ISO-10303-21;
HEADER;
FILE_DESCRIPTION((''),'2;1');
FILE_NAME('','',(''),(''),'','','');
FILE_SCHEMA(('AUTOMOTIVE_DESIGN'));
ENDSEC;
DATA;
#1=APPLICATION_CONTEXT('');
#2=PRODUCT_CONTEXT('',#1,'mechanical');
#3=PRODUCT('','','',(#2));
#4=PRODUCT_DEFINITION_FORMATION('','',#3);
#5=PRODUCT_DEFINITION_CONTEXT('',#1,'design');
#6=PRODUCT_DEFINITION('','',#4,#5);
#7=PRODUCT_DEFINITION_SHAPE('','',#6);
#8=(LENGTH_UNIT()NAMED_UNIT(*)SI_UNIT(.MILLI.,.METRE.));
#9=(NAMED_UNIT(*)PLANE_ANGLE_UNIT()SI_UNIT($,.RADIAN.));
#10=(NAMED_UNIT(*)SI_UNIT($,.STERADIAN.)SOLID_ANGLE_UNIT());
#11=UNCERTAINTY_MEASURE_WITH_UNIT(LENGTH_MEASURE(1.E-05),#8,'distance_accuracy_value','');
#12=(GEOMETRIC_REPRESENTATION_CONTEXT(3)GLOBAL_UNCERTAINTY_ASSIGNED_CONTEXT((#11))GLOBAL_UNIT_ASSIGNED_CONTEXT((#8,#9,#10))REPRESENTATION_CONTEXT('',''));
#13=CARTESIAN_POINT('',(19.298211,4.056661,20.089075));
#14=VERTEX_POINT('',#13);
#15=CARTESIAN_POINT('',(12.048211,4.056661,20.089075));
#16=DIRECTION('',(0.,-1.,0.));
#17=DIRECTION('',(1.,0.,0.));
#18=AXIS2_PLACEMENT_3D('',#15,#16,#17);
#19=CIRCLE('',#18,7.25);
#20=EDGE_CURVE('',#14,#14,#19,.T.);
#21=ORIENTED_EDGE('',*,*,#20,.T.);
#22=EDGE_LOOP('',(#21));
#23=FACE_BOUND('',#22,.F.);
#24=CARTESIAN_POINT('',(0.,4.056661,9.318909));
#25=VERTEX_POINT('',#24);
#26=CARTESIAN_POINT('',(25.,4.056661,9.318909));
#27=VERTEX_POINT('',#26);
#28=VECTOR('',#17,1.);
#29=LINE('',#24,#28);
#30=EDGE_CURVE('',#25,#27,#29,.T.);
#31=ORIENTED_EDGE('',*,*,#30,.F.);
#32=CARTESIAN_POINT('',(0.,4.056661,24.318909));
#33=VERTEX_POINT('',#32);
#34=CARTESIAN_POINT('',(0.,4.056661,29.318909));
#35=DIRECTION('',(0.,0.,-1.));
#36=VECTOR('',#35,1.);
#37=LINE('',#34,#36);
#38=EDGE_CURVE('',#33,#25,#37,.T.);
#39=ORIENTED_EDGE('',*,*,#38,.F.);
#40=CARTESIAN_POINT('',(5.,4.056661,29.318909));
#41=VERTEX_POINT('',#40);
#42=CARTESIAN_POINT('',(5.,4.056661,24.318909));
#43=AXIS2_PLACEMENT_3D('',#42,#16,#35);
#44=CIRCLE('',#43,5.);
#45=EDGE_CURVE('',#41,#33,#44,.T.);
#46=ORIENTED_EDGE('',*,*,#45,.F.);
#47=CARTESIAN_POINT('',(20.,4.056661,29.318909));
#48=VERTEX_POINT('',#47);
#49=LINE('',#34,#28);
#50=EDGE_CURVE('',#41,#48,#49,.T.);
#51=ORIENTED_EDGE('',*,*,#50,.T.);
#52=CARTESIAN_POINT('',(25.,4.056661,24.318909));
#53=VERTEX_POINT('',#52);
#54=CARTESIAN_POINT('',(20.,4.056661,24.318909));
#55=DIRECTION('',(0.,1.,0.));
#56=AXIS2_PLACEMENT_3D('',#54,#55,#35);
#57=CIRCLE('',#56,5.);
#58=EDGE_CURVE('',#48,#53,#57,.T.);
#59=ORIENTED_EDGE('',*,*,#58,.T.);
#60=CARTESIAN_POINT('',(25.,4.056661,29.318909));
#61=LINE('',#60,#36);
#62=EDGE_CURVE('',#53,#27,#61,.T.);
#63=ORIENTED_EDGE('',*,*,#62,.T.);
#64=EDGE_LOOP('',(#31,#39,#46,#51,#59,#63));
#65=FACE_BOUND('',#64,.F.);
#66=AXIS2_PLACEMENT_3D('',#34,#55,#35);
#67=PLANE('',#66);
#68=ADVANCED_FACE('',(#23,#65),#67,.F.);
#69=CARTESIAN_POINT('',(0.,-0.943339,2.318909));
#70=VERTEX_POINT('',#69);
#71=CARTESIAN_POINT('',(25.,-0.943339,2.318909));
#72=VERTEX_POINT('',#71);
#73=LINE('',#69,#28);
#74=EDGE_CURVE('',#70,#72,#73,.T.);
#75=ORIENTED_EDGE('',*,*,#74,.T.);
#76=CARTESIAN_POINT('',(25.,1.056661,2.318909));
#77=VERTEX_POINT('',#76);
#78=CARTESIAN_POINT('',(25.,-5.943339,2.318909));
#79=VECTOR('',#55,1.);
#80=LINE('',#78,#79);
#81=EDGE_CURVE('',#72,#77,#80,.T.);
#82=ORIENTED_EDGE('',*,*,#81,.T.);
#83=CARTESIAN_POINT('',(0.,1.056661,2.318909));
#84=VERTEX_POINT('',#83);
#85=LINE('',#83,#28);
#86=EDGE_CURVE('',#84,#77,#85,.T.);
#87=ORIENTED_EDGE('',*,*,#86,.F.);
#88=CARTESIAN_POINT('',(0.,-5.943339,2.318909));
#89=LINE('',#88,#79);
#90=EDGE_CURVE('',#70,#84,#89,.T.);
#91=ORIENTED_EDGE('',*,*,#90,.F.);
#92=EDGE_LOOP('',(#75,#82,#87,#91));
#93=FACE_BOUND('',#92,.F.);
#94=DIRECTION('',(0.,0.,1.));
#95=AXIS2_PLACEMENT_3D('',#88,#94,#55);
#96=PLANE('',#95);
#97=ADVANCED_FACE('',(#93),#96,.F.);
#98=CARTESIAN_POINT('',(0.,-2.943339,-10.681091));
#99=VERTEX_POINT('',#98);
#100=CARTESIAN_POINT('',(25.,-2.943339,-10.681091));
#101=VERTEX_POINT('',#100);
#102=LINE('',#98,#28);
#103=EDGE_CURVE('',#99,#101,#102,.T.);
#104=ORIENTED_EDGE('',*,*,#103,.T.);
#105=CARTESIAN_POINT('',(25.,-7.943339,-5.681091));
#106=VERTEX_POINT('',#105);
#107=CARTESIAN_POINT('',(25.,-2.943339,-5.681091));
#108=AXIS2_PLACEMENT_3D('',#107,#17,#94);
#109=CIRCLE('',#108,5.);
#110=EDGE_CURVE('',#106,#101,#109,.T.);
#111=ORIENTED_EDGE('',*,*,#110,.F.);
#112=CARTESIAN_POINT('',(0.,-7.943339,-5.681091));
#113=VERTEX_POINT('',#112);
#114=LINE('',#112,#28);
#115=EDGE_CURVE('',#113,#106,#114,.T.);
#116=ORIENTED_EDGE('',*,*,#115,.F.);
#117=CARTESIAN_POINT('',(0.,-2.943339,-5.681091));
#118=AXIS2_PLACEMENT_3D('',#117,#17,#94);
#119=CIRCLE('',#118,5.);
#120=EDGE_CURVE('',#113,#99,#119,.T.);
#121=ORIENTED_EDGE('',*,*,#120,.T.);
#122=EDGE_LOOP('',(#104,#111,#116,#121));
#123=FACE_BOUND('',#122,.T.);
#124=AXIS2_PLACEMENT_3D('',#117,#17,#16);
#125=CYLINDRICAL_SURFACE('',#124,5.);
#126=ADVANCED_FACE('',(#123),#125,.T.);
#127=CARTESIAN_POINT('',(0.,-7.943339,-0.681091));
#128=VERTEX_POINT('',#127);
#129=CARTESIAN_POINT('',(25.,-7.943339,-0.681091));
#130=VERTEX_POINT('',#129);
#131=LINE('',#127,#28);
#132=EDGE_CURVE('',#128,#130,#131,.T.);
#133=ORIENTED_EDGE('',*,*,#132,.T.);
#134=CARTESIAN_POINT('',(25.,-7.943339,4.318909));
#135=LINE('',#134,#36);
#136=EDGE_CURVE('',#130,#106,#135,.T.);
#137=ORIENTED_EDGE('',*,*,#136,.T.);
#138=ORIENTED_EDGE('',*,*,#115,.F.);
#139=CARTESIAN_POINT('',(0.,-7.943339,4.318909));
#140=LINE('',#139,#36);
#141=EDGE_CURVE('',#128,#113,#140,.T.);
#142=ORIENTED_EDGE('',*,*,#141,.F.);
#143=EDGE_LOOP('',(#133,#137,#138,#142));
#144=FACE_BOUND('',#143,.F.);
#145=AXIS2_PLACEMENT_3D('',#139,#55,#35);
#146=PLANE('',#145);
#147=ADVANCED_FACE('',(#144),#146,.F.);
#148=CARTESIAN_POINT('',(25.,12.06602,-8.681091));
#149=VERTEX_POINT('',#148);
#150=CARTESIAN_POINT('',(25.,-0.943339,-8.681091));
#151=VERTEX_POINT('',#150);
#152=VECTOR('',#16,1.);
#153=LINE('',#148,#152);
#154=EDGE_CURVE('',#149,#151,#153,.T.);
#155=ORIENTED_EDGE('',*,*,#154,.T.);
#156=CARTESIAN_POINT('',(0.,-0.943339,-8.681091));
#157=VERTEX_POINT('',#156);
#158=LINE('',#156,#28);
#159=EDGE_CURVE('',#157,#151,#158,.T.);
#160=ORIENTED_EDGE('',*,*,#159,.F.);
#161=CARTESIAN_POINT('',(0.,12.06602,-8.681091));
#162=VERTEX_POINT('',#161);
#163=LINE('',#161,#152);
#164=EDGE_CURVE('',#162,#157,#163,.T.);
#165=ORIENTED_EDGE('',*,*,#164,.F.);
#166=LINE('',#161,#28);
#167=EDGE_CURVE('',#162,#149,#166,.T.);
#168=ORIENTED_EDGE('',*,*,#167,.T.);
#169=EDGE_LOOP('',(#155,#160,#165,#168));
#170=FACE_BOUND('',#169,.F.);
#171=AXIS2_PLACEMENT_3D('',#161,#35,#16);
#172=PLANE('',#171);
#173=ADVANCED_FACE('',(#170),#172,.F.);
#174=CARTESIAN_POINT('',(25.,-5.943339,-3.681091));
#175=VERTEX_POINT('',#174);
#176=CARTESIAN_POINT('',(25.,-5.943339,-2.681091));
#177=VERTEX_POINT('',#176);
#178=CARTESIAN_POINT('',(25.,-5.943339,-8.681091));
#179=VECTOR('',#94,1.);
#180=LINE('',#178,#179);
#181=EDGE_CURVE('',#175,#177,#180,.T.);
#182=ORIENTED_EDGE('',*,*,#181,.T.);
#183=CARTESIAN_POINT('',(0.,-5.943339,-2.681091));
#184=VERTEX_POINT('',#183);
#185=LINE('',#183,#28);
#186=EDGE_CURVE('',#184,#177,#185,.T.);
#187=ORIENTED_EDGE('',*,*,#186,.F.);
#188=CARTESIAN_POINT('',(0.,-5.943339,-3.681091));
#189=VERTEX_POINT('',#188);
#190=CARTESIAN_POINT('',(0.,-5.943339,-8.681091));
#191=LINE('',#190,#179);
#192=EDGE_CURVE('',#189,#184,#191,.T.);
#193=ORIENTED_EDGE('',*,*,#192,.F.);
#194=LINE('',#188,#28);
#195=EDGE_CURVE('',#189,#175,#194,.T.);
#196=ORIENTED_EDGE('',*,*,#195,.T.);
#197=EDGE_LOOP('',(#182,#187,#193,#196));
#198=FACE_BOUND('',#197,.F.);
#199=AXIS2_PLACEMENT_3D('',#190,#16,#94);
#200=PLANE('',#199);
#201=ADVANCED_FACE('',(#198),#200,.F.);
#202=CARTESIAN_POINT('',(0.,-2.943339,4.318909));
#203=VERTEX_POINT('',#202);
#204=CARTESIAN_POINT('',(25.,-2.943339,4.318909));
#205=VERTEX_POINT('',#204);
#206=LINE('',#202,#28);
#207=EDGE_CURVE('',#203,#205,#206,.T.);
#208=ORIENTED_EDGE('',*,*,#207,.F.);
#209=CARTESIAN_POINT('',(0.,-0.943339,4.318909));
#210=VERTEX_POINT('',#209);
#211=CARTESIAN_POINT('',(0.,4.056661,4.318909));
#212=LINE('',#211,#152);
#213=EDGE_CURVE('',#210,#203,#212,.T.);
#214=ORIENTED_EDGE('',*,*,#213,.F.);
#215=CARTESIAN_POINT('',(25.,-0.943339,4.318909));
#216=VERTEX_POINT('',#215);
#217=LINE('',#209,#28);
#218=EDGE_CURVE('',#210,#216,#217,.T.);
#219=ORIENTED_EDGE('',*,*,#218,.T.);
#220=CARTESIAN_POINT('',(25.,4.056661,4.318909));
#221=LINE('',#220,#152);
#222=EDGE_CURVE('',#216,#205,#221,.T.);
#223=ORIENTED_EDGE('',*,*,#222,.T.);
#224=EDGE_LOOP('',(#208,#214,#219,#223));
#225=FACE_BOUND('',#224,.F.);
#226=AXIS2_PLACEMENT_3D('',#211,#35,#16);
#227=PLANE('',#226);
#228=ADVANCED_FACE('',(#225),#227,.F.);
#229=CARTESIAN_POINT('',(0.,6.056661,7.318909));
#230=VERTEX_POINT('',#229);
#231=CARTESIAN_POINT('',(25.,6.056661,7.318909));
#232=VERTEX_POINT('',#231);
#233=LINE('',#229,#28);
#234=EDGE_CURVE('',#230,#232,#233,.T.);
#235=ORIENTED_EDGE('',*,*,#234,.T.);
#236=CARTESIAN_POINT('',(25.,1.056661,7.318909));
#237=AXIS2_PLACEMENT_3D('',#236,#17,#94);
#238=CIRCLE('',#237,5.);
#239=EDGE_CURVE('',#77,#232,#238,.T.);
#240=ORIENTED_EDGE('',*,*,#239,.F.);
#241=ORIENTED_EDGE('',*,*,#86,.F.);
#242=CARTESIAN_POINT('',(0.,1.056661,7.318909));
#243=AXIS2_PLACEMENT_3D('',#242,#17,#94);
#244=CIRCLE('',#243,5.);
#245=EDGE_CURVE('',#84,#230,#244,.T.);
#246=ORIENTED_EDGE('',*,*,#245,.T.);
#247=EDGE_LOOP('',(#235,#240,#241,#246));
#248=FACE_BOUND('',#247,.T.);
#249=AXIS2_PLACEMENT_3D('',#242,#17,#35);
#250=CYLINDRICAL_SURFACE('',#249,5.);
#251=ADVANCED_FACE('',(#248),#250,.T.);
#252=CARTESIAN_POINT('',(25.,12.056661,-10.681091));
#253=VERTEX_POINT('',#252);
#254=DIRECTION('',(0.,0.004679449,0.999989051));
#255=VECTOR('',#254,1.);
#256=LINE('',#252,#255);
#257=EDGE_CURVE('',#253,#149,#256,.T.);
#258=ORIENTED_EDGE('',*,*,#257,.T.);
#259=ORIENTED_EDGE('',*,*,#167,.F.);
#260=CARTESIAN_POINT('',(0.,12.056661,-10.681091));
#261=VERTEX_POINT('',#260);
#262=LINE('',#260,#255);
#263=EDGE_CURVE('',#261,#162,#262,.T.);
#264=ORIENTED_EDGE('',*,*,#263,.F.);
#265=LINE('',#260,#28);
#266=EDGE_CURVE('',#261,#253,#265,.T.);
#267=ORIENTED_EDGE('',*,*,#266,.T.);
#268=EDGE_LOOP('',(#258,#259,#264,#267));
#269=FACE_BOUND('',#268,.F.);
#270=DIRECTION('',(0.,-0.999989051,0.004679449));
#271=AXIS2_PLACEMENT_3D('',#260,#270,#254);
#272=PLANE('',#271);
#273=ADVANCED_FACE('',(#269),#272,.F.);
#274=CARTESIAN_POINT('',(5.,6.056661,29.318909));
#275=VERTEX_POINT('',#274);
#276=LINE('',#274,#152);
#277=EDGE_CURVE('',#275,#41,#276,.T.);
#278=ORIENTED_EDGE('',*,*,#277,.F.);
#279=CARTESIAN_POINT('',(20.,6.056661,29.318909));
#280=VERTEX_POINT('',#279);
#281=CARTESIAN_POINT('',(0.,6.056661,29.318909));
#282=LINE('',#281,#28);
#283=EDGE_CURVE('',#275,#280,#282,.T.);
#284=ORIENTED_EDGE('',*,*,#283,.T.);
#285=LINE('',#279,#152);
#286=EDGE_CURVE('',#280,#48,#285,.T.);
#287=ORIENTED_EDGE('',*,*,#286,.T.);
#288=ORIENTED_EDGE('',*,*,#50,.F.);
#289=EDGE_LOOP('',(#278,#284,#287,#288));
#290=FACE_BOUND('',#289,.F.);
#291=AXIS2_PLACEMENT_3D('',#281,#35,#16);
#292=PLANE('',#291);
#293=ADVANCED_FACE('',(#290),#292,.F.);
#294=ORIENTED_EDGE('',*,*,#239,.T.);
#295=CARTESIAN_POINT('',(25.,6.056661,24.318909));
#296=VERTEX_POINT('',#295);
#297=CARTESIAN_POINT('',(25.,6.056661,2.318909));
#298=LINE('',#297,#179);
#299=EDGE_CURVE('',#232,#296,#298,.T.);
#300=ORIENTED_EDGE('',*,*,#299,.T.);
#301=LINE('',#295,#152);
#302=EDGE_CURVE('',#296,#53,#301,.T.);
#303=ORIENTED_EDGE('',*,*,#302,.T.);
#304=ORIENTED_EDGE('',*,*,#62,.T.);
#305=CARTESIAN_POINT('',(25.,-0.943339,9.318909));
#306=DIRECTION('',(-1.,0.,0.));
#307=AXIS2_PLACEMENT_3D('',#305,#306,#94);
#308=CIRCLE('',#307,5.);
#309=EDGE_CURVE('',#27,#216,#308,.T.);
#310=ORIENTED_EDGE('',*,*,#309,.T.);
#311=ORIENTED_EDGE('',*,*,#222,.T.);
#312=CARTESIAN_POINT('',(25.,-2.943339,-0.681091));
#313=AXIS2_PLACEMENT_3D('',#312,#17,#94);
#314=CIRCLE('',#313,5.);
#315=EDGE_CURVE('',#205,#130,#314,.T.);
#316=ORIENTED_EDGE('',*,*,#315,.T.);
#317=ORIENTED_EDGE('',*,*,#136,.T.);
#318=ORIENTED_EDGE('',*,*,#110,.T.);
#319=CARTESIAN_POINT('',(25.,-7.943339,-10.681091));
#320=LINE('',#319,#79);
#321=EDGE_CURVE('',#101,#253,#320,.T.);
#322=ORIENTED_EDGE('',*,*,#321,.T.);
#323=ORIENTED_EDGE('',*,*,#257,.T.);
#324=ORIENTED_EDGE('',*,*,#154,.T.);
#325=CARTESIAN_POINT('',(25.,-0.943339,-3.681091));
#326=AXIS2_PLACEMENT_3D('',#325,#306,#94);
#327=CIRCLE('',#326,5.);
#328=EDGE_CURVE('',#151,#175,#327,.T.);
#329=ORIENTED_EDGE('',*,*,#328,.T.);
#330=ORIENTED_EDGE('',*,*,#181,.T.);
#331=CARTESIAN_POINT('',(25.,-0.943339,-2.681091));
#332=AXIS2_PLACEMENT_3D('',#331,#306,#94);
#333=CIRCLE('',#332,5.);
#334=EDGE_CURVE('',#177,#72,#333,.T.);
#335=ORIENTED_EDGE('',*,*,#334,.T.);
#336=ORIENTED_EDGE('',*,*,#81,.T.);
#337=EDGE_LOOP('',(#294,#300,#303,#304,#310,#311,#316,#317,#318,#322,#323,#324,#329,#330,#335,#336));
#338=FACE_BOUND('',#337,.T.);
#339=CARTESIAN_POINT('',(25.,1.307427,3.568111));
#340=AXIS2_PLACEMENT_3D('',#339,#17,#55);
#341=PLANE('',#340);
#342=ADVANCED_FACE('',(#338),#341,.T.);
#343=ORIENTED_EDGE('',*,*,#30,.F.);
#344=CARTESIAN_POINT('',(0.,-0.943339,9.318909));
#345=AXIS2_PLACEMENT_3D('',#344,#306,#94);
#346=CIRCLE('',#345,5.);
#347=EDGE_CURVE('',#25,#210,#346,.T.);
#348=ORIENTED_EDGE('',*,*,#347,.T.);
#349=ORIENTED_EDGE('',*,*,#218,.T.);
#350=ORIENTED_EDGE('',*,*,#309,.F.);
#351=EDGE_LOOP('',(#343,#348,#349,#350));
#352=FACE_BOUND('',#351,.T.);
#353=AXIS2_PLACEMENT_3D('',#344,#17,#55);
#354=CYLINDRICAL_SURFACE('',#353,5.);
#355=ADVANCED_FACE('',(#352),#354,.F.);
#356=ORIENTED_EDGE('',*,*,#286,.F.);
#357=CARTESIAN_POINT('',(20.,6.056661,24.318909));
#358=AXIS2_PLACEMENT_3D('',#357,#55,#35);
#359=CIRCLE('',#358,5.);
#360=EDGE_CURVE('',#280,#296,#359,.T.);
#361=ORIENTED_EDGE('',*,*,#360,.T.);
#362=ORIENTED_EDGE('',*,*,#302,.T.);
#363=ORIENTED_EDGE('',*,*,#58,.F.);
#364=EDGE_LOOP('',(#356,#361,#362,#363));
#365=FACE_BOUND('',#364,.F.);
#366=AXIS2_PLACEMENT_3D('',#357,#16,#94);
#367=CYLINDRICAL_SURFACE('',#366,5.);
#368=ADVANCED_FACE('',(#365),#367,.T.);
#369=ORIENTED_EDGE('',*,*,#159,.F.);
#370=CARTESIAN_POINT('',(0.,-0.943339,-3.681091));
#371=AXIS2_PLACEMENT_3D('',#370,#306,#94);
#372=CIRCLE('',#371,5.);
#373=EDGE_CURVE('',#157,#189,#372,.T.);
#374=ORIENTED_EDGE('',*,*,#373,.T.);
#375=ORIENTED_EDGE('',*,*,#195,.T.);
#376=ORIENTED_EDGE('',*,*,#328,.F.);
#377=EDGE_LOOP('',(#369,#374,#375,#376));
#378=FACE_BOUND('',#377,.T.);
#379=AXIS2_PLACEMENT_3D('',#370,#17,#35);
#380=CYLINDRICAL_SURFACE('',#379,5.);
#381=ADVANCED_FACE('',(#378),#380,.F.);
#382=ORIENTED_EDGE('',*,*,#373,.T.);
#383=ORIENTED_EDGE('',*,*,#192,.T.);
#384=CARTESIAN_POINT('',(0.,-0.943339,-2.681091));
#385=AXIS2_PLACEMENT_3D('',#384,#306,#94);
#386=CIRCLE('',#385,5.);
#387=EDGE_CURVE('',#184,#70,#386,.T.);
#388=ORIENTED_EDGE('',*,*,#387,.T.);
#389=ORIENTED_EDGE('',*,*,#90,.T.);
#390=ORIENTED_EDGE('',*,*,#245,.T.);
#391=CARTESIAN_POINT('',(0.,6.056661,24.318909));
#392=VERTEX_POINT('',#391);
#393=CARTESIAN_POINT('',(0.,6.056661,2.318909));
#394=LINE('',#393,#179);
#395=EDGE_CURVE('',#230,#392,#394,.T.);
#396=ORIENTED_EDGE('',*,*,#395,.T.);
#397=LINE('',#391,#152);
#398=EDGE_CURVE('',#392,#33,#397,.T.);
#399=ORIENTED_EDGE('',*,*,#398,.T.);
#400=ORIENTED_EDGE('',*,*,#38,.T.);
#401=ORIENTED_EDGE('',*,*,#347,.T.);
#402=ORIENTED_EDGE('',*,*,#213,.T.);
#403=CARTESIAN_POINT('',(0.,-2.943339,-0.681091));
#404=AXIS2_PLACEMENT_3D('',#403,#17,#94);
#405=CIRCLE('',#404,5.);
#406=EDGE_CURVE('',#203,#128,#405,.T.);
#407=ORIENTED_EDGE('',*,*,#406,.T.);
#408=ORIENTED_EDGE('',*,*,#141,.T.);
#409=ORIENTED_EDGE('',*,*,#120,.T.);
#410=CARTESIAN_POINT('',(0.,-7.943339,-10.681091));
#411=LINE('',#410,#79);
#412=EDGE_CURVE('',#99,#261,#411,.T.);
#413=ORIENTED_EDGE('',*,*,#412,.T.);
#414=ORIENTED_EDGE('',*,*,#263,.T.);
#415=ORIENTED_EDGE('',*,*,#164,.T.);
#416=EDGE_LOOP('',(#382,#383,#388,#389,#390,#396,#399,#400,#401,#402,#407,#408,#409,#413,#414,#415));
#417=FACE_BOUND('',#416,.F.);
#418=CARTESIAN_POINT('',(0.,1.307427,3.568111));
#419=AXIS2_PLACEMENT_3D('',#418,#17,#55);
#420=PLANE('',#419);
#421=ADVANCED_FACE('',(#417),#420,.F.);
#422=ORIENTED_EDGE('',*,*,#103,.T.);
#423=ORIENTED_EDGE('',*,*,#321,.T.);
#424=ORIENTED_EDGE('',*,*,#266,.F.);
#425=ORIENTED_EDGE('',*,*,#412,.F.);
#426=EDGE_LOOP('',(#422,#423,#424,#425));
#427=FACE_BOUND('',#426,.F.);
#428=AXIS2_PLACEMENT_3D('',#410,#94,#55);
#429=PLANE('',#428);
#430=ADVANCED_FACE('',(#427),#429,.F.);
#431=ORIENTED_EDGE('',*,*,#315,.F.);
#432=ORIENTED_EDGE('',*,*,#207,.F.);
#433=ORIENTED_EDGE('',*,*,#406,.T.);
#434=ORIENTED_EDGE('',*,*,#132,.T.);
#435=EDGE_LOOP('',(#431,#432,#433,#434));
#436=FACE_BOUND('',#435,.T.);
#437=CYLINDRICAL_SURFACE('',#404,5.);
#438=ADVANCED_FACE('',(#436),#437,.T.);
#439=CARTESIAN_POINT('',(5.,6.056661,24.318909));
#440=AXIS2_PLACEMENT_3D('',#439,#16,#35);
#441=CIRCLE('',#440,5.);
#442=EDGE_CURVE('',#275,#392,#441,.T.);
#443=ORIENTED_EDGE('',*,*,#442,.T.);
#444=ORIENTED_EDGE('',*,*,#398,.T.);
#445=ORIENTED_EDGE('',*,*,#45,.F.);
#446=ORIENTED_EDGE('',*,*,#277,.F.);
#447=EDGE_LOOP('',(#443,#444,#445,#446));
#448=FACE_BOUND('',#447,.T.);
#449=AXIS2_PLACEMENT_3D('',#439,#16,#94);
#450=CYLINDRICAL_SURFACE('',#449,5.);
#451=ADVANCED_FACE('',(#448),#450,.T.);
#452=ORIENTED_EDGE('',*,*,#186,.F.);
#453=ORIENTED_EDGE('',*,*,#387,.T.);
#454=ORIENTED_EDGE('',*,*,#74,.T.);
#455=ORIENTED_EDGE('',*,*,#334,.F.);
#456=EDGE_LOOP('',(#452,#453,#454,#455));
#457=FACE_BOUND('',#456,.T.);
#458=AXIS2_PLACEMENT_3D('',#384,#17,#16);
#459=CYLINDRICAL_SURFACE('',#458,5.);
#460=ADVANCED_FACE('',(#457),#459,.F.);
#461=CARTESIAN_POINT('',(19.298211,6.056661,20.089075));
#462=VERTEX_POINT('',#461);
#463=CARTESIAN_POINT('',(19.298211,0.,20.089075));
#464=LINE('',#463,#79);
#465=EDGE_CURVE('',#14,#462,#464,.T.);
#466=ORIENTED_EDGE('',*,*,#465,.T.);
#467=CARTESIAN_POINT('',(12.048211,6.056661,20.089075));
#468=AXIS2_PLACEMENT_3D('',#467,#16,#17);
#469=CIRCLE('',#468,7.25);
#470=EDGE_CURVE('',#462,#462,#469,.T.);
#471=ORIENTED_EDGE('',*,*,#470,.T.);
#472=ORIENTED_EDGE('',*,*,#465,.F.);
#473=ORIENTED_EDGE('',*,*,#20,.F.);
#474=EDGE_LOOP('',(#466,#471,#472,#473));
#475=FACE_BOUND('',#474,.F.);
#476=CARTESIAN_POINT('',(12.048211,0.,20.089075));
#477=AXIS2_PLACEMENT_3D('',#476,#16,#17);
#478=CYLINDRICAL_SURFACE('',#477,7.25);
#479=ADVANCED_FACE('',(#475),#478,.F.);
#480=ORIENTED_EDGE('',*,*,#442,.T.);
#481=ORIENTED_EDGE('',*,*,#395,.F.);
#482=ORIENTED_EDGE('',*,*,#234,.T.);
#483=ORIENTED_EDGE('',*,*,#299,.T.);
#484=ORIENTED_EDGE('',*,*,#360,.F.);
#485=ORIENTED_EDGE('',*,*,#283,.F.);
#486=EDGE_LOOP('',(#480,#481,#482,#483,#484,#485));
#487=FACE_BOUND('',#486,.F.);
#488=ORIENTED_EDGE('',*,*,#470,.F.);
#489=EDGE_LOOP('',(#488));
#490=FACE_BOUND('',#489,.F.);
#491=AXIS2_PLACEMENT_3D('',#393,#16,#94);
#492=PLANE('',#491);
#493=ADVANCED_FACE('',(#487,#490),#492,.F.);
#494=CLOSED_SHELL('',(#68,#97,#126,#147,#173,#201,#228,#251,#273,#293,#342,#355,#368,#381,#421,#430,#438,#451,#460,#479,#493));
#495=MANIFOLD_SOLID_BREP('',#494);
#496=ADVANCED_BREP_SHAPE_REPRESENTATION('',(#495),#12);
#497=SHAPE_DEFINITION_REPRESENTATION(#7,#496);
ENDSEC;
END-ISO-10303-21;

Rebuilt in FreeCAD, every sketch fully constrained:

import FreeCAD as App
import Part
import Sketcher
from FreeCAD import Vector


def edges_at(feature, points):
    """Names of the edges that pass closest to the given points."""
    edges = feature.Shape.Edges
    near = lambda p: min(range(len(edges)), key=lambda i: edges[i].distToShape(Part.Vertex(*p))[0])
    return sorted({f"Edge{near(p) + 1}" for p in points})


def add_polygon(sketch, points):
    """Adds a closed chain of lines whose ends are joined by coincident constraints."""
    first, n = sketch.GeometryCount, len(points)
    for a, b in zip(points, points[1:] + points[:1]):
        sketch.addGeometry(Part.LineSegment(App.Vector(*a, 0), App.Vector(*b, 0)), False)
    for i in range(n):
        sketch.addConstraint(Sketcher.Constraint("Coincident", first + i, 2, first + (i + 1) % n, 1))

doc = App.newDocument("Part")
body = doc.addObject("PartDesign::Body", "Body")

sketch1 = doc.addObject("Sketcher::SketchObject", "Sketch")
body.addObject(sketch1)
sketch1.AttachmentSupport = (doc.YZ_Plane, [""])
sketch1.MapMode = "FlatFace"
add_polygon(sketch1, [(6.056661, 29.318909), (4.056661, 29.318909), (4.056661, 4.318909), (-7.943339, 4.318909), (-7.943339, -10.681091), (12.056661, -10.681091), (12.06602, -8.681091), (-5.943339, -8.681091), (-5.943339, 2.318909), (6.056661, 2.318909)])
sketch1.addConstraint([
    Sketcher.Constraint("Horizontal", 0),
    Sketcher.Constraint("Vertical", 1),
    Sketcher.Constraint("Horizontal", 2),
    Sketcher.Constraint("Vertical", 3),
    Sketcher.Constraint("Horizontal", 4),
    Sketcher.Constraint("Horizontal", 6),
    Sketcher.Constraint("Vertical", 7),
    Sketcher.Constraint("Horizontal", 8),
    Sketcher.Constraint("Vertical", 9),
    Sketcher.Constraint("Equal", 2, 8),
    Sketcher.Constraint("DistanceX", 0, 2, 0, 1, 2.0),
    Sketcher.Constraint("DistanceX", 2, 2, 2, 1, 12.0),
    Sketcher.Constraint("DistanceX", 4, 1, 4, 2, 20.0),
    Sketcher.Constraint("DistanceY", 1, 2, 1, 1, 25.0),
    Sketcher.Constraint("DistanceY", 3, 2, 3, 1, 15.0),
    Sketcher.Constraint("DistanceY", 7, 1, 7, 2, 11.0),
    Sketcher.Constraint("DistanceY", 9, 1, 9, 2, 27.0),
    Sketcher.Constraint("DistanceX", 6, 2, 6, 1, 18.009359),
    Sketcher.Constraint("DistanceX", -1, 1, 0, 2, 4.056661),
    Sketcher.Constraint("DistanceY", -1, 1, 0, 2, 29.318909),
])
pad1 = doc.addObject("PartDesign::Pad", "Pad")
body.addObject(pad1)
pad1.Profile = sketch1
pad1.Length = 25
doc.recompute()

fillet = doc.addObject("PartDesign::Fillet", "Fillet")
body.addObject(fillet)
fillet.Base = (pad1, edges_at(pad1, [
    (12.5, 4.057, 4.319),
    (12.5, -7.943, 4.319),
    (12.5, -7.943, -10.681),
    (12.5, -5.943, 2.319),
    (12.5, -5.943, -8.681),
    (12.5, 6.057, 2.319),
    (25, 5.057, 29.319),
    (0, 5.057, 29.319),
]))
fillet.Radius = 5

sketch2 = doc.addObject("Sketcher::SketchObject", "Sketch001")
body.addObject(sketch2)
sketch2.AttachmentSupport = (doc.XZ_Plane, [""])
sketch2.MapMode = "FlatFace"
sketch2.addGeometry(Part.Circle(Vector(12.048211, 20.089075, 0), Vector(0, 0, 1), 7.25), False)
sketch2.addConstraint([
    Sketcher.Constraint("Diameter", 0, 14.5),
    Sketcher.Constraint("DistanceX", -1, 1, 0, 3, 12.048211),
    Sketcher.Constraint("DistanceY", -1, 1, 0, 3, 20.089075),
])
pocket1 = doc.addObject("PartDesign::Pocket", "Pocket")
body.addObject(pocket1)
pocket1.Profile = sketch2
pocket1.Length = 25

doc.recompute()
